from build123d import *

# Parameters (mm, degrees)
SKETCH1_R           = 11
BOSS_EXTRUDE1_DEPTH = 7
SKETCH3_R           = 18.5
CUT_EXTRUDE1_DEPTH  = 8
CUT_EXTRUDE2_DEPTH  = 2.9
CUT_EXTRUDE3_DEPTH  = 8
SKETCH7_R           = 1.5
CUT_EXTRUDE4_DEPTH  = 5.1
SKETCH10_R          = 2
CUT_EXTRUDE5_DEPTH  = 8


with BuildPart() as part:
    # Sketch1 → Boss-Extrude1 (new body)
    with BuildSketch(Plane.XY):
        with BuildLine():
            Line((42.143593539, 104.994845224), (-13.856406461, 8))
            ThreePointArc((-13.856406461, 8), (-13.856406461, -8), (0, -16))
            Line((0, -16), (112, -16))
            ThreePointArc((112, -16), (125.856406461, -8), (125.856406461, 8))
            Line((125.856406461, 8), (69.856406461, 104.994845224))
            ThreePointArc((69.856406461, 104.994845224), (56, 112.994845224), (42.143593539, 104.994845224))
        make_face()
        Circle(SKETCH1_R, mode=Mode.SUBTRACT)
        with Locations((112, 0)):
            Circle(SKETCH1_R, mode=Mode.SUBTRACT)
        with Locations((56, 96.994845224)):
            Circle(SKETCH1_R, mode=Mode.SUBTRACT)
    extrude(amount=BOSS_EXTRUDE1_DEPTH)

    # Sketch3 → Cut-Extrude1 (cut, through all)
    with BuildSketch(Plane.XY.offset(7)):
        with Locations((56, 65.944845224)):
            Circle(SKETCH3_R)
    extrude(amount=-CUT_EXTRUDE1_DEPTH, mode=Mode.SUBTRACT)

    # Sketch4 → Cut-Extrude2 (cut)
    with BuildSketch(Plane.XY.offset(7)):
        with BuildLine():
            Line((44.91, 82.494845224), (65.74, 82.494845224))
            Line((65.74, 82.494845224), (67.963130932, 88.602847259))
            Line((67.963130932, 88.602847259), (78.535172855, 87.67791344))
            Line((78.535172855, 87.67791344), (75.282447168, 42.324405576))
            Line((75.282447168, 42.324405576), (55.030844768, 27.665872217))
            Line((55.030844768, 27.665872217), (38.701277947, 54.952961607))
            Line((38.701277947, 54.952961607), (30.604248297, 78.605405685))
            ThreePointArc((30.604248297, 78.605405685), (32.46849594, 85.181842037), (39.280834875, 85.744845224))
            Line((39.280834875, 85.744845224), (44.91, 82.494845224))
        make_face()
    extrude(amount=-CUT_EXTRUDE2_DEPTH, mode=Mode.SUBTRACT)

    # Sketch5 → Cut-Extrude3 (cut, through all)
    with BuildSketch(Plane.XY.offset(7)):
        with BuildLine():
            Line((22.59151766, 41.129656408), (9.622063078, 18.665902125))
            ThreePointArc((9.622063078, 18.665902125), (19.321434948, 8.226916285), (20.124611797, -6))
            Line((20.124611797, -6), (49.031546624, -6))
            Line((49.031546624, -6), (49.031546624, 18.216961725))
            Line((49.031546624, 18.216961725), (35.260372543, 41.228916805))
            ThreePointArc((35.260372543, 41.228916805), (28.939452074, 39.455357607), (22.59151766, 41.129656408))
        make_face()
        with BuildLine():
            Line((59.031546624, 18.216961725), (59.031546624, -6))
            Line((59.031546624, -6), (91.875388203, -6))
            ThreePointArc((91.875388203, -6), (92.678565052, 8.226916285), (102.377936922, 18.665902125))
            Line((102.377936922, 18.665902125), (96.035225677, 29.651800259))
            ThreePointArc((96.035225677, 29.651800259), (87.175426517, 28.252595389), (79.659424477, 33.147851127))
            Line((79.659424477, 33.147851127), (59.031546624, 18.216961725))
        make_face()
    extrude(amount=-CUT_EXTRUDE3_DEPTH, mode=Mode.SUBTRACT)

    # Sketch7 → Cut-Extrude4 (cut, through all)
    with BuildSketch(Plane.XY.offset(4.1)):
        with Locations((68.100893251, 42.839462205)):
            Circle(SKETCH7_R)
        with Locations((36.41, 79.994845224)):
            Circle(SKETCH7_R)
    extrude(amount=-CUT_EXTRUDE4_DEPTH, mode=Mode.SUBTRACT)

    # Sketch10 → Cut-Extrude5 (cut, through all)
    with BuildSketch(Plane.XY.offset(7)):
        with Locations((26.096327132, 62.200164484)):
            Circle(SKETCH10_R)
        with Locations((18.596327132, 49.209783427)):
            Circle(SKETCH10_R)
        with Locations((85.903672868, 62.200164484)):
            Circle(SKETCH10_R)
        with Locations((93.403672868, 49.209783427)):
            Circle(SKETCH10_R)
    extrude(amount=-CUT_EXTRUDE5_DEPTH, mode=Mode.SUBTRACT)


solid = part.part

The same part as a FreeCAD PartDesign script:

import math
import FreeCAD as App
import Part
import Sketcher
Q = App.Units.Quantity

doc = App.newDocument("Part")
body = doc.addObject("PartDesign::Body", "Body")

# Sketch on XY plane
sketch1 = body.newObject("Sketcher::SketchObject", "Sketch")
sketch1.AttachmentSupport = (doc.getObject("XY_Plane"), [""])
sketch1.MapMode = "FlatFace"
sketch1.addGeometry(Part.LineSegment(App.Vector(42.143594, 104.994845, 0), App.Vector(-13.856406, 8, 0)), False)
sketch1.addGeometry(Part.ArcOfCircle(Part.Circle(App.Vector(0, 0, 0), App.Vector(0, 0, 1), 16), math.radians(150), math.radians(270)), False)
sketch1.addGeometry(Part.LineSegment(App.Vector(0, -16, 0), App.Vector(112, -16, 0)), False)
sketch1.addGeometry(Part.ArcOfCircle(Part.Circle(App.Vector(112, 0, 0), App.Vector(0, 0, 1), 16), math.radians(-90), math.radians(30)), False)
sketch1.addGeometry(Part.LineSegment(App.Vector(125.856406, 8, 0), App.Vector(69.856406, 104.994845, 0)), False)
sketch1.addGeometry(Part.ArcOfCircle(Part.Circle(App.Vector(56, 96.994845, 0), App.Vector(0, 0, 1), 16), math.radians(30), math.radians(150)), False)
sketch1.addGeometry(Part.Circle(App.Vector(0, 0, 0), App.Vector(0, 0, 1), 11), False)
sketch1.addGeometry(Part.Circle(App.Vector(112, 0, 0), App.Vector(0, 0, 1), 11), False)
sketch1.addGeometry(Part.Circle(App.Vector(56, 96.994845, 0), App.Vector(0, 0, 1), 11), False)
sketch1.addConstraint(Sketcher.Constraint("Tangent", 0, 2, 1, 1))
sketch1.addConstraint(Sketcher.Constraint("Tangent", 1, 2, 2, 1))
sketch1.addConstraint(Sketcher.Constraint("Tangent", 2, 2, 3, 1))
sketch1.addConstraint(Sketcher.Constraint("Tangent", 3, 2, 4, 1))
sketch1.addConstraint(Sketcher.Constraint("Tangent", 4, 2, 5, 1))
sketch1.addConstraint(Sketcher.Constraint("Tangent", 5, 2, 0, 1))
sketch1.addConstraint(Sketcher.Constraint("Horizontal", 2))
sketch1.addConstraint(Sketcher.Constraint("Coincident", 1, 3, -1, 1))
sketch1.addConstraint(Sketcher.Constraint("Coincident", 6, 3, -1, 1))
sketch1.addConstraint(Sketcher.Constraint("Coincident", 7, 3, 3, 3))
sketch1.addConstraint(Sketcher.Constraint("Coincident", 8, 3, 5, 3))
sketch1.addConstraint(Sketcher.Constraint("Equal", 1, 3))
sketch1.addConstraint(Sketcher.Constraint("Equal", 3, 5))
sketch1.addConstraint(Sketcher.Constraint("Equal", 6, 7))
sketch1.addConstraint(Sketcher.Constraint("Equal", 7, 8))
sketch1.addConstraint(Sketcher.Constraint("Horizontal", 0, 2, 3, 2))
sketch1.addConstraint(Sketcher.Constraint("Diameter", 6, Q("22 mm")))
sketch1.addConstraint(Sketcher.Constraint("Radius", 1, Q("16 mm")))
sketch1.addConstraint(Sketcher.Constraint("DistanceX", 2, 1, 2, 2, Q("112 mm")))
sketch1.addConstraint(Sketcher.Constraint("Angle", 0, Q("-120 deg")))
pad1 = body.newObject("PartDesign::Pad", "Pad")
pad1.Profile = sketch1
pad1.Length = 7

# Sketch on XY plane
sketch2 = body.newObject("Sketcher::SketchObject", "Sketch001")
sketch2.AttachmentSupport = (doc.getObject("XY_Plane"), [""])
sketch2.MapMode = "FlatFace"
sketch2.AttachmentOffset = App.Placement(App.Vector(0, 0, 7), App.Rotation())
sketch2.addGeometry(Part.Circle(App.Vector(56, 65.944845, 0), App.Vector(0, 0, 1), 18.5), False)
sketch2.addConstraint(Sketcher.Constraint("Diameter", 0, Q("37 mm")))
sketch2.addConstraint(Sketcher.Constraint("DistanceX", -1, 1, 0, 3, Q("56 mm")))
sketch2.addConstraint(Sketcher.Constraint("DistanceY", -1, 1, 0, 3, Q("65.944845 mm")))
pocket1 = body.newObject("PartDesign::Pocket", "Pocket")
pocket1.Profile = sketch2
pocket1.Type = "ThroughAll"

# Sketch on XY plane
sketch3 = body.newObject("Sketcher::SketchObject", "Sketch002")
sketch3.AttachmentSupport = (doc.getObject("XY_Plane"), [""])
sketch3.MapMode = "FlatFace"
sketch3.AttachmentOffset = App.Placement(App.Vector(0, 0, 7), App.Rotation())
sketch3.addGeometry(Part.LineSegment(App.Vector(65.74, 82.494845, 0), App.Vector(44.91, 82.494845, 0)), False)
sketch3.addGeometry(Part.LineSegment(App.Vector(44.91, 82.494845, 0), App.Vector(39.280835, 85.744845, 0)), False)
sketch3.addGeometry(Part.ArcOfCircle(Part.Circle(App.Vector(36.280835, 80.548693, 0), App.Vector(0, 0, 1), 6), math.radians(60), math.radians(198.897806)), False)
sketch3.addGeometry(Part.LineSegment(App.Vector(30.604248, 78.605406, 0), App.Vector(38.701278, 54.952962, 0)), False)
sketch3.addGeometry(Part.LineSegment(App.Vector(38.701278, 54.952962, 0), App.Vector(55.030845, 27.665872, 0)), False)
sketch3.addGeometry(Part.LineSegment(App.Vector(55.030845, 27.665872, 0), App.Vector(75.282447, 42.324406, 0)), False)
sketch3.addGeometry(Part.LineSegment(App.Vector(75.282447, 42.324406, 0), App.Vector(78.535173, 87.677913, 0)), False)
sketch3.addGeometry(Part.LineSegment(App.Vector(78.535173, 87.677913, 0), App.Vector(67.963131, 88.602847, 0)), False)
sketch3.addGeometry(Part.LineSegment(App.Vector(67.963131, 88.602847, 0), App.Vector(65.74, 82.494845, 0)), False)
sketch3.addConstraint(Sketcher.Constraint("Coincident", 0, 2, 1, 1))
sketch3.addConstraint(Sketcher.Constraint("Coincident", 1, 2, 2, 1))
sketch3.addConstraint(Sketcher.Constraint("Coincident", 2, 2, 3, 1))
sketch3.addConstraint(Sketcher.Constraint("Coincident", 3, 2, 4, 1))
sketch3.addConstraint(Sketcher.Constraint("Coincident", 4, 2, 5, 1))
sketch3.addConstraint(Sketcher.Constraint("Coincident", 5, 2, 6, 1))
sketch3.addConstraint(Sketcher.Constraint("Coincident", 6, 2, 7, 1))
sketch3.addConstraint(Sketcher.Constraint("Coincident", 7, 2, 8, 1))
sketch3.addConstraint(Sketcher.Constraint("Coincident", 8, 2, 0, 1))
sketch3.addConstraint(Sketcher.Constraint("Horizontal", 0))
sketch3.addConstraint(Sketcher.Constraint("Radius", 2, Q("6 mm")))
sketch3.addConstraint(Sketcher.Constraint("Distance", 3, Q("25 mm")))
sketch3.addConstraint(Sketcher.Constraint("Distance", 5, Q("25 mm")))
sketch3.addConstraint(Sketcher.Constraint("DistanceX", 2, 3, 1, 2, Q("3 mm")))
sketch3.addConstraint(Sketcher.Constraint("Distance", 1, Q("6.5 mm")))
sketch3.addConstraint(Sketcher.Constraint("Distance", 4, Q("31.8 mm")))
sketch3.addConstraint(Sketcher.Constraint("Distance", 8, Q("6.5 mm")))
sketch3.addConstraint(Sketcher.Constraint("DistanceX", 0, 2, 0, 1, Q("20.83 mm")))
sketch3.addConstraint(Sketcher.Constraint("Distance", 6, Q("45.47 mm")))
sketch3.addConstraint(Sketcher.Constraint("DistanceX", -1, 1, 0, 2, Q("44.91 mm")))
sketch3.addConstraint(Sketcher.Constraint("DistanceY", 0, 2, 1, 2, Q("3.25 mm")))
sketch3.addConstraint(Sketcher.Constraint("DistanceX", -1, 1, 2, 2, Q("30.604248 mm")))
sketch3.addConstraint(Sketcher.Constraint("DistanceY", -1, 1, 3, 2, Q("54.952962 mm")))
sketch3.addConstraint(Sketcher.Constraint("DistanceX", -1, 1, 7, 2, Q("67.963131 mm")))
sketch3.addConstraint(Sketcher.Constraint("DistanceX", 2, 2, 3, 2, Q("8.09703 mm")))
sketch3.addConstraint(Sketcher.Constraint("DistanceY", 4, 2, 3, 2, Q("27.287089 mm")))
sketch3.addConstraint(Sketcher.Constraint("DistanceX", 3, 2, 5, 2, Q("36.581169 mm")))
sketch3.addConstraint(Sketcher.Constraint("DistanceY", 0, 2, 6, 2, Q("5.183068 mm")))
pocket2 = body.newObject("PartDesign::Pocket", "Pocket001")
pocket2.Profile = sketch3
pocket2.Length = 2.9

# Sketch on XY plane
sketch4 = body.newObject("Sketcher::SketchObject", "Sketch003")
sketch4.AttachmentSupport = (doc.getObject("XY_Plane"), [""])
sketch4.MapMode = "FlatFace"
sketch4.AttachmentOffset = App.Placement(App.Vector(0, 0, 7), App.Rotation())
sketch4.addGeometry(Part.LineSegment(App.Vector(22.591518, 41.129656, 0), App.Vector(9.622063, 18.665902, 0)), False)
sketch4.addGeometry(Part.ArcOfCircle(Part.Circle(App.Vector(0, 0, 0), App.Vector(0, 0, 1), 21), math.radians(-16.60155), math.radians(62.729403)), False)
sketch4.addGeometry(Part.LineSegment(App.Vector(20.124612, -6, 0), App.Vector(49.031547, -6, 0)), False)
sketch4.addGeometry(Part.LineSegment(App.Vector(49.031547, -6, 0), App.Vector(49.031547, 18.216962, 0)), False)
sketch4.addGeometry(Part.LineSegment(App.Vector(49.031547, 18.216962, 0), App.Vector(35.260373, 41.228917, 0)), False)
sketch4.addGeometry(Part.ArcOfCircle(Part.Circle(App.Vector(28.841518, 51.954974, 0), App.Vector(0, 0, 1), 12.5), math.radians(-120), math.radians(-59.102194)), False)
sketch4.addGeometry(Part.LineSegment(App.Vector(59.031547, 18.216962, 0), App.Vector(59.031547, -6, 0)), False)
sketch4.addGeometry(Part.LineSegment(App.Vector(59.031547, -6, 0), App.Vector(91.875388, -6, 0)), False)
sketch4.addGeometry(Part.ArcOfCircle(Part.Circle(App.Vector(112, 0, 0), App.Vector(0, 0, 1), 21), math.radians(117.270597), math.radians(196.60155)), False)
sketch4.addGeometry(Part.LineSegment(App.Vector(102.377937, 18.665902, 0), App.Vector(96.035226, 29.6518, 0)), False)
sketch4.addGeometry(Part.ArcOfCircle(Part.Circle(App.Vector(89.785226, 40.477118, 0), App.Vector(0, 0, 1), 12.5), math.radians(-144.102194), math.radians(-60)), False)
sketch4.addGeometry(Part.LineSegment(App.Vector(79.659424, 33.147851, 0), App.Vector(59.031547, 18.216962, 0)), False)
sketch4.addConstraint(Sketcher.Constraint("Coincident", 0, 2, 1, 2))
sketch4.addConstraint(Sketcher.Constraint("Coincident", 1, 1, 2, 1))
sketch4.addConstraint(Sketcher.Constraint("Coincident", 2, 2, 3, 1))
sketch4.addConstraint(Sketcher.Constraint("Coincident", 3, 2, 4, 1))
sketch4.addConstraint(Sketcher.Constraint("Coincident", 4, 2, 5, 2))
sketch4.addConstraint(Sketcher.Constraint("Coincident", 5, 1, 0, 1))
sketch4.addConstraint(Sketcher.Constraint("Coincident", 6, 2, 7, 1))
sketch4.addConstraint(Sketcher.Constraint("Coincident", 7, 2, 8, 2))
sketch4.addConstraint(Sketcher.Constraint("Coincident", 8, 1, 9, 1))
sketch4.addConstraint(Sketcher.Constraint("Coincident", 9, 2, 10, 2))
sketch4.addConstraint(Sketcher.Constraint("Coincident", 10, 1, 11, 1))
sketch4.addConstraint(Sketcher.Constraint("Coincident", 11, 2, 6, 1))
sketch4.addConstraint(Sketcher.Constraint("Horizontal", 2))
sketch4.addConstraint(Sketcher.Constraint("Vertical", 3))
sketch4.addConstraint(Sketcher.Constraint("Vertical", 6))
sketch4.addConstraint(Sketcher.Constraint("Horizontal", 7))
sketch4.addConstraint(Sketcher.Constraint("Coincident", 1, 3, -1, 1))
sketch4.addConstraint(Sketcher.Constraint("Equal", 1, 8))
sketch4.addConstraint(Sketcher.Constraint("Equal", 5, 10))
sketch4.addConstraint(Sketcher.Constraint("PointOnObject", 8, 3, -1))
sketch4.addConstraint(Sketcher.Constraint("Horizontal", 2, 2, 6, 2))
sketch4.addConstraint(Sketcher.Constraint("Horizontal", 0, 2, 8, 1))
sketch4.addConstraint(Sketcher.Constraint("Horizontal", 3, 2, 11, 2))
sketch4.addConstraint(Sketcher.Constraint("Radius", 1, Q("21 mm")))
sketch4.addConstraint(Sketcher.Constraint("Radius", 5, Q("12.5 mm")))
sketch4.addConstraint(Sketcher.Constraint("Angle", 0, Q("-120 deg")))
sketch4.addConstraint(Sketcher.Constraint("Angle", 9, Q("120 deg")))
sketch4.addConstraint(Sketcher.Constraint("DistanceX", -1, 1, 8, 3, Q("112 mm")))
sketch4.addConstraint(Sketcher.Constraint("DistanceY", 1, 1, -1, 1, Q("6 mm")))
sketch4.addConstraint(Sketcher.Constraint("DistanceX", 2, 2, 6, 2, Q("10 mm")))
sketch4.addConstraint(Sketcher.Constraint("DistanceX", 5, 1, 5, 3, Q("6.25 mm")))
sketch4.addConstraint(Sketcher.Constraint("DistanceX", 10, 3, 9, 2, Q("6.25 mm")))
sketch4.addConstraint(Sketcher.Constraint("Distance", 11, Q("25.464501 mm")))
sketch4.addConstraint(Sketcher.Constraint("DistanceX", 7, 1, 7, 2, Q("32.843842 mm")))
sketch4.addConstraint(Sketcher.Constraint("DistanceY", 3, 1, 3, 2, Q("24.216962 mm")))
sketch4.addConstraint(Sketcher.Constraint("DistanceY", -1, 1, 9, 2, Q("29.6518 mm")))
sketch4.addConstraint(Sketcher.Constraint("DistanceX", 10, 1, 10, 3, Q("10.125801 mm")))
sketch4.addConstraint(Sketcher.Constraint("Distance", 0, Q("25.938909 mm")))
sketch4.addConstraint(Sketcher.Constraint("DistanceX", 0, 2, 4, 2, Q("25.638309 mm")))
pocket3 = body.newObject("PartDesign::Pocket", "Pocket002")
pocket3.Profile = sketch4
pocket3.Type = "ThroughAll"

# Sketch on XY plane
sketch5 = body.newObject("Sketcher::SketchObject", "Sketch004")
sketch5.AttachmentSupport = (doc.getObject("XY_Plane"), [""])
sketch5.MapMode = "FlatFace"
sketch5.AttachmentOffset = App.Placement(App.Vector(0, 0, 4.1), App.Rotation())
sketch5.addGeometry(Part.Circle(App.Vector(68.100893, 42.839462, 0), App.Vector(0, 0, 1), 1.5), False)
sketch5.addGeometry(Part.Circle(App.Vector(36.41, 79.994845, 0), App.Vector(0, 0, 1), 1.5), False)
sketch5.addConstraint(Sketcher.Constraint("Equal", 0, 1))
sketch5.addConstraint(Sketcher.Constraint("Diameter", 0, Q("3 mm")))
sketch5.addConstraint(Sketcher.Constraint("DistanceX", -1, 1, 1, 3, Q("36.41 mm")))
sketch5.addConstraint(Sketcher.Constraint("DistanceX", -1, 1, 0, 3, Q("68.100893 mm")))
sketch5.addConstraint(Sketcher.Constraint("DistanceY", -1, 1, 0, 3, Q("42.839462 mm")))
sketch5.addConstraint(Sketcher.Constraint("DistanceY", -1, 1, 1, 3, Q("79.994845 mm")))
pocket4 = body.newObject("PartDesign::Pocket", "Pocket003")
pocket4.Profile = sketch5
pocket4.Type = "ThroughAll"

# Sketch on XY plane
sketch6 = body.newObject("Sketcher::SketchObject", "Sketch005")
sketch6.AttachmentSupport = (doc.getObject("XY_Plane"), [""])
sketch6.MapMode = "FlatFace"
sketch6.AttachmentOffset = App.Placement(App.Vector(0, 0, 7), App.Rotation())
sketch6.addGeometry(Part.Circle(App.Vector(26.096327, 62.200164, 0), App.Vector(0, 0, 1), 2), False)
sketch6.addGeometry(Part.Circle(App.Vector(18.596327, 49.209783, 0), App.Vector(0, 0, 1), 2), False)
sketch6.addGeometry(Part.Circle(App.Vector(85.903673, 62.200164, 0), App.Vector(0, 0, 1), 2), False)
sketch6.addGeometry(Part.Circle(App.Vector(93.403673, 49.209783, 0), App.Vector(0, 0, 1), 2), False)
sketch6.addConstraint(Sketcher.Constraint("Equal", 0, 1))
sketch6.addConstraint(Sketcher.Constraint("Equal", 1, 2))
sketch6.addConstraint(Sketcher.Constraint("Equal", 2, 3))
sketch6.addConstraint(Sketcher.Constraint("Horizontal", 0, 3, 2, 3))
sketch6.addConstraint(Sketcher.Constraint("Horizontal", 1, 3, 3, 3))
sketch6.addConstraint(Sketcher.Constraint("Diameter", 0, Q("4 mm")))
sketch6.addConstraint(Sketcher.Constraint("DistanceX", 1, 3, 0, 3, Q("7.5 mm")))
sketch6.addConstraint(Sketcher.Constraint("DistanceX", 2, 3, 3, 3, Q("7.5 mm")))
sketch6.addConstraint(Sketcher.Constraint("DistanceY", 1, 3, 0, 3, Q("12.990381 mm")))
sketch6.addConstraint(Sketcher.Constraint("DistanceX", -1, 1, 0, 3, Q("26.096327 mm")))
sketch6.addConstraint(Sketcher.Constraint("DistanceY", -1, 1, 0, 3, Q("62.200164 mm")))
sketch6.addConstraint(Sketcher.Constraint("DistanceX", -1, 1, 2, 3, Q("85.903673 mm")))
pocket5 = body.newObject("PartDesign::Pocket", "Pocket004")
pocket5.Profile = sketch6
pocket5.Type = "ThroughAll"

doc.recompute()
